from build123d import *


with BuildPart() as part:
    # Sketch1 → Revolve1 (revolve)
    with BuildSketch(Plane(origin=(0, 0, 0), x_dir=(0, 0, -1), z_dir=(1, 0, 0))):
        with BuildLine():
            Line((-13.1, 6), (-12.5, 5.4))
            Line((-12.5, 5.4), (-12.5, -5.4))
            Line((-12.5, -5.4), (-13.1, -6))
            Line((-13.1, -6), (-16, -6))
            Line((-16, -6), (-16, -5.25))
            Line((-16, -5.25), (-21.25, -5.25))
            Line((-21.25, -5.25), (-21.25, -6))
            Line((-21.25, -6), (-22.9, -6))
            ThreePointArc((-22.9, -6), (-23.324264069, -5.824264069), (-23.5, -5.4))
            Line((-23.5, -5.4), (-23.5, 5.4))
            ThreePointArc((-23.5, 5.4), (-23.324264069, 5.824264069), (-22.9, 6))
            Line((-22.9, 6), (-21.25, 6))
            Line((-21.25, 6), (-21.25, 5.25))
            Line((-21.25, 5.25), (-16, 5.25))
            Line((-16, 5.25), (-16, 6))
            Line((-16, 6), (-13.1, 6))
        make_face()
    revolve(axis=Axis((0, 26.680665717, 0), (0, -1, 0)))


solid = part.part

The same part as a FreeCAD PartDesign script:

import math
import FreeCAD as App
import Part
import Sketcher

V = App.Vector
Q = App.Units.Quantity

doc = App.newDocument("Part")
params = doc.addObject("Spreadsheet::Sheet", "Params")
for row, (alias, value) in enumerate([
    ("sketch1_radius", "0.6 mm"),
    ("sketch1_width", "10.8 mm"),
    ("sketch1_height", "2.9 mm"),
    ("sketch1_width2", "0.75 mm"),
    ("sketch1_height2", "5.25 mm"),
    ("revolution_angle", "360 deg"),
], start=1):
    params.set(f"A{row}", alias)
    params.set(f"B{row}", "=" + value)
    params.setAlias(f"B{row}", alias)

body = doc.addObject("PartDesign::Body", "Body")

# Sketch on YZ plane
sketch1 = body.newObject("Sketcher::SketchObject", "Sketch")
sketch1.AttachmentSupport = (doc.getObject("YZ_Plane"), [""])
sketch1.MapMode = "FlatFace"
sketch1.addGeometry(Part.LineSegment(V(5.4, 12.5, 0), V(6, 13.1, 0)), False)
sketch1.addGeometry(Part.LineSegment(V(6, 13.1, 0), V(6, 16, 0)), False)
sketch1.addGeometry(Part.LineSegment(V(6, 16, 0), V(5.2, 16, 0)), False)
sketch1.addGeometry(Part.LineSegment(V(5.2, 16, 0), V(5.2, 21.2, 0)), False)
sketch1.addGeometry(Part.LineSegment(V(5.2, 21.2, 0), V(6, 21.2, 0)), False)
sketch1.addGeometry(Part.LineSegment(V(6, 21.2, 0), V(6, 22.9, 0)), False)
sketch1.addGeometry(Part.ArcOfCircle(Part.Circle(V(5.4, 22.9, 0), V(0, 0, 1), 0.6), math.radians(0), math.radians(90)), False)
sketch1.addGeometry(Part.LineSegment(V(5.4, 23.5, 0), V(-5.4, 23.5, 0)), False)
sketch1.addGeometry(Part.ArcOfCircle(Part.Circle(V(-5.4, 22.9, 0), V(0, 0, 1), 0.6), math.radians(90), math.radians(180)), False)
sketch1.addGeometry(Part.LineSegment(V(-6, 22.9, 0), V(-6, 21.2, 0)), False)
sketch1.addGeometry(Part.LineSegment(V(-6, 21.2, 0), V(-5.2, 21.2, 0)), False)
sketch1.addGeometry(Part.LineSegment(V(-5.2, 21.2, 0), V(-5.2, 16, 0)), False)
sketch1.addGeometry(Part.LineSegment(V(-5.2, 16, 0), V(-6, 16, 0)), False)
sketch1.addGeometry(Part.LineSegment(V(-6, 16, 0), V(-6, 13.1, 0)), False)
sketch1.addGeometry(Part.LineSegment(V(-6, 13.1, 0), V(-5.4, 12.5, 0)), False)
sketch1.addGeometry(Part.LineSegment(V(-5.4, 12.5, 0), V(5.4, 12.5, 0)), False)
sketch1.addConstraint(Sketcher.Constraint("Coincident", 0, 2, 1, 1))
sketch1.addConstraint(Sketcher.Constraint("Coincident", 1, 2, 2, 1))
sketch1.addConstraint(Sketcher.Constraint("Coincident", 2, 2, 3, 1))
sketch1.addConstraint(Sketcher.Constraint("Coincident", 3, 2, 4, 1))
sketch1.addConstraint(Sketcher.Constraint("Coincident", 4, 2, 5, 1))
sketch1.addConstraint(Sketcher.Constraint("Tangent", 5, 2, 6, 1))
sketch1.addConstraint(Sketcher.Constraint("Tangent", 6, 2, 7, 1))
sketch1.addConstraint(Sketcher.Constraint("Tangent", 7, 2, 8, 1))
sketch1.addConstraint(Sketcher.Constraint("Tangent", 8, 2, 9, 1))
sketch1.addConstraint(Sketcher.Constraint("Coincident", 9, 2, 10, 1))
sketch1.addConstraint(Sketcher.Constraint("Coincident", 10, 2, 11, 1))
sketch1.addConstraint(Sketcher.Constraint("Coincident", 11, 2, 12, 1))
sketch1.addConstraint(Sketcher.Constraint("Coincident", 12, 2, 13, 1))
sketch1.addConstraint(Sketcher.Constraint("Coincident", 13, 2, 14, 1))
sketch1.addConstraint(Sketcher.Constraint("Coincident", 14, 2, 15, 1))
sketch1.addConstraint(Sketcher.Constraint("Coincident", 15, 2, 0, 1))
sketch1.addConstraint(Sketcher.Constraint("Vertical", 1))
sketch1.addConstraint(Sketcher.Constraint("Horizontal", 2))
sketch1.addConstraint(Sketcher.Constraint("Vertical", 3))
sketch1.addConstraint(Sketcher.Constraint("Horizontal", 4))
sketch1.addConstraint(Sketcher.Constraint("Vertical", 5))
sketch1.addConstraint(Sketcher.Constraint("Horizontal", 7))
sketch1.addConstraint(Sketcher.Constraint("Vertical", 9))
sketch1.addConstraint(Sketcher.Constraint("Horizontal", 10))
sketch1.addConstraint(Sketcher.Constraint("Vertical", 11))
sketch1.addConstraint(Sketcher.Constraint("Horizontal", 12))
sketch1.addConstraint(Sketcher.Constraint("Vertical", 13))
sketch1.addConstraint(Sketcher.Constraint("Horizontal", 15))
sketch1.addConstraint(Sketcher.Constraint("Equal", 6, 8))
sketch1.addConstraint(Sketcher.Constraint("Symmetric", 4, 2, 9, 2, -2))
sketch1.addConstraint(Sketcher.Constraint("Symmetric", 2, 2, 11, 2, -2))
sketch1.addConstraint(Sketcher.Constraint("Symmetric", 0, 2, 13, 2, -2))
sketch1.addConstraint(Sketcher.Constraint("Perpendicular", 0, 14))
sketch1.addConstraint(Sketcher.Constraint("Vertical", 1, 2, 4, 2))
sketch1.addConstraint(Sketcher.Constraint("Vertical", 7, 2, 14, 2))
sketch1.addConstraint(Sketcher.Constraint("Vertical", 6, 2, 15, 2))
sketch1.addConstraint(Sketcher.Constraint("Radius", 6, Q("0.6 mm")))
sketch1.addConstraint(Sketcher.Constraint("DistanceX", 7, 2, 7, 1, Q("10.8 mm")))
sketch1.addConstraint(Sketcher.Constraint("DistanceY", 1, 1, 1, 2, Q("2.9 mm")))
sketch1.addConstraint(Sketcher.Constraint("DistanceY", -1, 1, 1, 2, Q("16 mm")))
sketch1.addConstraint(Sketcher.Constraint("DistanceX", 2, 2, 2, 1, Q("0.75 mm")))
sketch1.addConstraint(Sketcher.Constraint("DistanceY", 3, 1, 3, 2, Q("5.25 mm")))
sketch1.addConstraint(Sketcher.Constraint("DistanceY", 5, 1, 5, 2, Q("1.65 mm")))
sketch1.setExpression("Constraints[36]", "Params.sketch1_radius")
sketch1.setExpression("Constraints[37]", "Params.sketch1_width")
sketch1.setExpression("Constraints[38]", "Params.sketch1_height")
sketch1.setExpression("Constraints[40]", "Params.sketch1_width2")
sketch1.setExpression("Constraints[41]", "Params.sketch1_height2")
revolution = body.newObject("PartDesign::Revolution", "Revolution")
revolution.Profile = sketch1
revolution.ReferenceAxis = (sketch1, ["H_Axis"])
revolution.setExpression("Angle", "Params.revolution_angle")

doc.recompute()
